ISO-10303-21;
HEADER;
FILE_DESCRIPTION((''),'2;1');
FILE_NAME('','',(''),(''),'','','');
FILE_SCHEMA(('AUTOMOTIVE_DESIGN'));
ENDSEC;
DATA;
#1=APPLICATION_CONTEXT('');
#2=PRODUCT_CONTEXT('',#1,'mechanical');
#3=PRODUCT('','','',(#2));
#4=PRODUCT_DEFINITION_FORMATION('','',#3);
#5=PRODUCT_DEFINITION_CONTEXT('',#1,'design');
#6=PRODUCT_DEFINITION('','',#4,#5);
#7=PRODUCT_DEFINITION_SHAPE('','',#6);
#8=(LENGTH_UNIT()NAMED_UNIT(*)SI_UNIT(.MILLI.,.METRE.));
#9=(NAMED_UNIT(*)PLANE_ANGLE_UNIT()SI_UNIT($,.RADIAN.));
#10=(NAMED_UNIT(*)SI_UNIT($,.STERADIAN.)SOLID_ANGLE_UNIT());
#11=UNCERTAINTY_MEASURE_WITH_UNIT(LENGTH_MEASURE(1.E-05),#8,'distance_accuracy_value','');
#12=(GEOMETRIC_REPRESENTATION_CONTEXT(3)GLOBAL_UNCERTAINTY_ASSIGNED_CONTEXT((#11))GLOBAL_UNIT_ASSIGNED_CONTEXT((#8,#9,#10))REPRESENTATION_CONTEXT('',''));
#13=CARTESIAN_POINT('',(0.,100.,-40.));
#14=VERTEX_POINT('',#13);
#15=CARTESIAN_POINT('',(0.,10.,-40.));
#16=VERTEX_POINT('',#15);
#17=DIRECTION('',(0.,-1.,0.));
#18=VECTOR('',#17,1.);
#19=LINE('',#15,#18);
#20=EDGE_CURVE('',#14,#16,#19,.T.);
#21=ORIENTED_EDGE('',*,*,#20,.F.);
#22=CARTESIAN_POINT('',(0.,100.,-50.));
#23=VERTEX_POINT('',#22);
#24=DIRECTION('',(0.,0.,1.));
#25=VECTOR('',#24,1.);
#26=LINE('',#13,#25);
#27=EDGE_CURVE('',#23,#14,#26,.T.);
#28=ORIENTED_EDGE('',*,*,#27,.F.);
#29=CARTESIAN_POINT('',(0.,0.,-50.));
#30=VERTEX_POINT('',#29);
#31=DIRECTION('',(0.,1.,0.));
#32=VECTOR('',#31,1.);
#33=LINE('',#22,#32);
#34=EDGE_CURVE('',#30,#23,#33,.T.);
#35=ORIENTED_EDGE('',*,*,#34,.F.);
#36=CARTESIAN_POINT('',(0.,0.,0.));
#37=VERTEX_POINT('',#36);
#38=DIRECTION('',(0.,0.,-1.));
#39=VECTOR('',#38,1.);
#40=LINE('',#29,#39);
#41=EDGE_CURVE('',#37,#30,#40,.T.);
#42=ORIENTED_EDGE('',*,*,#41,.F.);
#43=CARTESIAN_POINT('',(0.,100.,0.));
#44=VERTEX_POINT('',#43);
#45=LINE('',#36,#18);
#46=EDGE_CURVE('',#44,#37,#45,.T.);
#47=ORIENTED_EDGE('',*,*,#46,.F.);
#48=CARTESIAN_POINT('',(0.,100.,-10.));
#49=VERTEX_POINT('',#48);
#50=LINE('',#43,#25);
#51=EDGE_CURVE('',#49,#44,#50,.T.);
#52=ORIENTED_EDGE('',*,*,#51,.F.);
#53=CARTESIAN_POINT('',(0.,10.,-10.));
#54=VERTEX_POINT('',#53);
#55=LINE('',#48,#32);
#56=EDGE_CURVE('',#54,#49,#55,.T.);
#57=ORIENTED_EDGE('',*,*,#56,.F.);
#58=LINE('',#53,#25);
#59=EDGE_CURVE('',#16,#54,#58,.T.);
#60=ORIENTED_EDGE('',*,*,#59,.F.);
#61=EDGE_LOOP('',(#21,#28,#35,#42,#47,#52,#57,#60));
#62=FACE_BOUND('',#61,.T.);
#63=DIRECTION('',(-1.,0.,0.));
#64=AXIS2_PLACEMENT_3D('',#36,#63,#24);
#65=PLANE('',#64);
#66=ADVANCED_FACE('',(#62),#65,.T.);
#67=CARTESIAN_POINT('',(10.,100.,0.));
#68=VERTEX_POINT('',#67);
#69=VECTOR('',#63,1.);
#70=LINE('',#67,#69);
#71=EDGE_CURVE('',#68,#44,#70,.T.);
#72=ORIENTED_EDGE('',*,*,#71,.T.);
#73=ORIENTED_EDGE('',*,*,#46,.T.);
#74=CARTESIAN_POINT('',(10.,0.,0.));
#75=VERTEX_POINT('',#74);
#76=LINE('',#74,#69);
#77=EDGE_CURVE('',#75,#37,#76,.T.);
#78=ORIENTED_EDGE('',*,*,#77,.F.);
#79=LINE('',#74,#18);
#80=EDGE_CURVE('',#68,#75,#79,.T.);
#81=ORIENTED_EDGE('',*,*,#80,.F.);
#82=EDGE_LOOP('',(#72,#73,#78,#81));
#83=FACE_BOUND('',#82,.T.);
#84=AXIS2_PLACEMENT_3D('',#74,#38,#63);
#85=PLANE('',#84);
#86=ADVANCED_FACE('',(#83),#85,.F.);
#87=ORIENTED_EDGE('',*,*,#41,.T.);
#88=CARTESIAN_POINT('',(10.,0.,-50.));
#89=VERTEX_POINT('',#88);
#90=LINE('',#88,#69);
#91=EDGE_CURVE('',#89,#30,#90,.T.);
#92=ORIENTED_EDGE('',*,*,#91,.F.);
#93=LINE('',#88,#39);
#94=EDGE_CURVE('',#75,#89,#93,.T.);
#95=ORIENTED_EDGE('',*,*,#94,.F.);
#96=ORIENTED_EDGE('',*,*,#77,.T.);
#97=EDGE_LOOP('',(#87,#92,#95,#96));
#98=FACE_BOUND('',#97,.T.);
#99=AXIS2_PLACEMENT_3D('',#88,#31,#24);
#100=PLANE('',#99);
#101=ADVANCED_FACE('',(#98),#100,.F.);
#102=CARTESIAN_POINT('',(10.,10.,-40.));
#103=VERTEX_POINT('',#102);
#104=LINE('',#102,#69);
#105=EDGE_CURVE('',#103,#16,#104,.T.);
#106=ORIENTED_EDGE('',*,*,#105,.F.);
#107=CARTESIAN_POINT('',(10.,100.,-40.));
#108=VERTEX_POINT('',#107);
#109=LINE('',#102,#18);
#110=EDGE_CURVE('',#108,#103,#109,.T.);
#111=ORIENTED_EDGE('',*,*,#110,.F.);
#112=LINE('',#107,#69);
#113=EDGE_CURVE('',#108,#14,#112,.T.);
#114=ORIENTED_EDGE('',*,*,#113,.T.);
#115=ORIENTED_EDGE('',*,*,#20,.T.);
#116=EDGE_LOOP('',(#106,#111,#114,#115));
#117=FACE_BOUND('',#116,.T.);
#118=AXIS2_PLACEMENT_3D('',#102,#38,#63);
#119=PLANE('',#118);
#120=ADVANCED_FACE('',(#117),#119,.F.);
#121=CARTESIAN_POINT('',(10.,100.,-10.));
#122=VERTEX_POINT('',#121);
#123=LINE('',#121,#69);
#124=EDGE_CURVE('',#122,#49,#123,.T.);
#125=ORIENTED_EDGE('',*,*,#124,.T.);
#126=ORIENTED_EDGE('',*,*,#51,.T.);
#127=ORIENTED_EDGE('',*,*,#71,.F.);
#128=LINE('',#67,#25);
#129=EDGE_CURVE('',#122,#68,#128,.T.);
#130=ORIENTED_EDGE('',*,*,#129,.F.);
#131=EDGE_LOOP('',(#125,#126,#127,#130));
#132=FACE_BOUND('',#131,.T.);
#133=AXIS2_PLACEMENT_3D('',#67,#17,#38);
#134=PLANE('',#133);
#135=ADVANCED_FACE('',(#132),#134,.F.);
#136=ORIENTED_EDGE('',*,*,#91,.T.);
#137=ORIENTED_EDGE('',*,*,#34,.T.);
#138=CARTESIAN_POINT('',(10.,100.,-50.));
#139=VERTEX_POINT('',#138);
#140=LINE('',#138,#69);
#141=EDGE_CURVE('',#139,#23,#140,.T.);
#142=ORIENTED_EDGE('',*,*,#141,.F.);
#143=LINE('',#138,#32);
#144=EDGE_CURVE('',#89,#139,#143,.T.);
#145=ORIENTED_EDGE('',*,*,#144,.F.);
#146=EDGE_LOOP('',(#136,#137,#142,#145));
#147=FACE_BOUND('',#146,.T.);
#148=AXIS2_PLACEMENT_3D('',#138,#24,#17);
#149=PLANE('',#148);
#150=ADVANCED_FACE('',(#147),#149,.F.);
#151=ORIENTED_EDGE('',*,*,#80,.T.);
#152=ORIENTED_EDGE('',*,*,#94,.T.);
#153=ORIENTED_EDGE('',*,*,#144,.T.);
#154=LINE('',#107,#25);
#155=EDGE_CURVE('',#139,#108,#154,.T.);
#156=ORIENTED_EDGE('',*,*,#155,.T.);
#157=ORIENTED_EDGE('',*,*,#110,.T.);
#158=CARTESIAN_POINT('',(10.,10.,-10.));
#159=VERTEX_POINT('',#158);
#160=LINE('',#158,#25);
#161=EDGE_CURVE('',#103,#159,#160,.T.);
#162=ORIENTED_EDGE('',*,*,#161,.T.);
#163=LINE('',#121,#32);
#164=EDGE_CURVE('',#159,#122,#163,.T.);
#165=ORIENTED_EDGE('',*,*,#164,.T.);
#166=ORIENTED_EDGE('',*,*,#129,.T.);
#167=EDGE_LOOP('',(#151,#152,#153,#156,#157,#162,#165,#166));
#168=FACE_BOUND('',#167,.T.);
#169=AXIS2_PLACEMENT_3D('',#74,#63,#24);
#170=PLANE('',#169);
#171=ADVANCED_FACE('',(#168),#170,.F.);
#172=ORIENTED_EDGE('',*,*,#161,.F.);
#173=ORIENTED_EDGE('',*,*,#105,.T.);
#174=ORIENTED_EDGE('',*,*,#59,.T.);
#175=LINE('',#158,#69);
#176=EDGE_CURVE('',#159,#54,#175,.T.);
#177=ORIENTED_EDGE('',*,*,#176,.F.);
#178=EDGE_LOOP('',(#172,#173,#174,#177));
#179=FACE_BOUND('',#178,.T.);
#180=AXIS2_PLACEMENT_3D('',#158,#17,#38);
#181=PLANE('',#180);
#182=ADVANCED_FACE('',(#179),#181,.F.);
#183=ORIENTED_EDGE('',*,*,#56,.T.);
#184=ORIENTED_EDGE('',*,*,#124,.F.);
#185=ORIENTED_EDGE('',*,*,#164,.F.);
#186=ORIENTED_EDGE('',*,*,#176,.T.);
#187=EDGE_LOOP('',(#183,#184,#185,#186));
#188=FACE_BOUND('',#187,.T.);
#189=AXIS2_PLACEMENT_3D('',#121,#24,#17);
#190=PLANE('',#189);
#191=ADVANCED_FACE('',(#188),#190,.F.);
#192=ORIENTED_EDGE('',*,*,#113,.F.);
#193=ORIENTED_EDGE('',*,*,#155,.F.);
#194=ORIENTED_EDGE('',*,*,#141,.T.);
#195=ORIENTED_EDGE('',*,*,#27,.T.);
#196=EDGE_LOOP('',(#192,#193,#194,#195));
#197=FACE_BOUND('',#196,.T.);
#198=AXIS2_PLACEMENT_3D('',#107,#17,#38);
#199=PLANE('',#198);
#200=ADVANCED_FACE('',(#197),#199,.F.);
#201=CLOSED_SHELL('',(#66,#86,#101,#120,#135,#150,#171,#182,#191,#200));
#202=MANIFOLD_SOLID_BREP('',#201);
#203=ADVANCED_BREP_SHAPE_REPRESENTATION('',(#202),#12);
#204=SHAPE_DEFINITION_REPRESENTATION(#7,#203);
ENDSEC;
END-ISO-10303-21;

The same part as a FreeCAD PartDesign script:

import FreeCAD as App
import Part
import Sketcher

V = App.Vector
Q = App.Units.Quantity


def add_polygon(sketch, points):
    """Adds a closed chain of lines whose ends are joined by coincident constraints."""
    first, n = sketch.GeometryCount, len(points)
    for a, b in zip(points, points[1:] + points[:1]):
        sketch.addGeometry(Part.LineSegment(App.Vector(*a, 0), App.Vector(*b, 0)), False)
    for i in range(n):
        sketch.addConstraint(Sketcher.Constraint("Coincident", first + i, 2, first + (i + 1) % n, 1))

doc = App.newDocument("Part")
body = doc.addObject("PartDesign::Body", "Body")

sketch1 = body.newObject("Sketcher::SketchObject", "Sketch")
sketch1.AttachmentSupport = (doc.getObject("YZ_Plane"), [""])
sketch1.MapMode = "FlatFace"
add_polygon(sketch1, [(100, 0), (0, 0), (0, -50), (100, -50), (100, -40), (10, -40), (10, -10), (100, -10)])
sketch1.addConstraint([
    Sketcher.Constraint("Horizontal", 0),
    Sketcher.Constraint("Vertical", 1),
    Sketcher.Constraint("Horizontal", 2),
    Sketcher.Constraint("Vertical", 3),
    Sketcher.Constraint("Horizontal", 4),
    Sketcher.Constraint("Vertical", 5),
    Sketcher.Constraint("Horizontal", 6),
    Sketcher.Constraint("Vertical", 7),
    Sketcher.Constraint("Coincident", 0, 2, -1, 1),
    Sketcher.Constraint("Vertical", 3, 2, 6, 2),
    Sketcher.Constraint("Equal", 3, 7),
    Sketcher.Constraint("DistanceX", 0, 2, 0, 1, Q("100 mm")),
    Sketcher.Constraint("DistanceX", 4, 2, 4, 1, Q("90 mm")),
    Sketcher.Constraint("DistanceY", 1, 2, 1, 1, Q("50 mm")),
    Sketcher.Constraint("DistanceY", 3, 1, 3, 2, Q("10 mm")),
])
pad1 = body.newObject("PartDesign::Pad", "Pad")
pad1.Profile = sketch1
pad1.Length = 10

doc.recompute()
